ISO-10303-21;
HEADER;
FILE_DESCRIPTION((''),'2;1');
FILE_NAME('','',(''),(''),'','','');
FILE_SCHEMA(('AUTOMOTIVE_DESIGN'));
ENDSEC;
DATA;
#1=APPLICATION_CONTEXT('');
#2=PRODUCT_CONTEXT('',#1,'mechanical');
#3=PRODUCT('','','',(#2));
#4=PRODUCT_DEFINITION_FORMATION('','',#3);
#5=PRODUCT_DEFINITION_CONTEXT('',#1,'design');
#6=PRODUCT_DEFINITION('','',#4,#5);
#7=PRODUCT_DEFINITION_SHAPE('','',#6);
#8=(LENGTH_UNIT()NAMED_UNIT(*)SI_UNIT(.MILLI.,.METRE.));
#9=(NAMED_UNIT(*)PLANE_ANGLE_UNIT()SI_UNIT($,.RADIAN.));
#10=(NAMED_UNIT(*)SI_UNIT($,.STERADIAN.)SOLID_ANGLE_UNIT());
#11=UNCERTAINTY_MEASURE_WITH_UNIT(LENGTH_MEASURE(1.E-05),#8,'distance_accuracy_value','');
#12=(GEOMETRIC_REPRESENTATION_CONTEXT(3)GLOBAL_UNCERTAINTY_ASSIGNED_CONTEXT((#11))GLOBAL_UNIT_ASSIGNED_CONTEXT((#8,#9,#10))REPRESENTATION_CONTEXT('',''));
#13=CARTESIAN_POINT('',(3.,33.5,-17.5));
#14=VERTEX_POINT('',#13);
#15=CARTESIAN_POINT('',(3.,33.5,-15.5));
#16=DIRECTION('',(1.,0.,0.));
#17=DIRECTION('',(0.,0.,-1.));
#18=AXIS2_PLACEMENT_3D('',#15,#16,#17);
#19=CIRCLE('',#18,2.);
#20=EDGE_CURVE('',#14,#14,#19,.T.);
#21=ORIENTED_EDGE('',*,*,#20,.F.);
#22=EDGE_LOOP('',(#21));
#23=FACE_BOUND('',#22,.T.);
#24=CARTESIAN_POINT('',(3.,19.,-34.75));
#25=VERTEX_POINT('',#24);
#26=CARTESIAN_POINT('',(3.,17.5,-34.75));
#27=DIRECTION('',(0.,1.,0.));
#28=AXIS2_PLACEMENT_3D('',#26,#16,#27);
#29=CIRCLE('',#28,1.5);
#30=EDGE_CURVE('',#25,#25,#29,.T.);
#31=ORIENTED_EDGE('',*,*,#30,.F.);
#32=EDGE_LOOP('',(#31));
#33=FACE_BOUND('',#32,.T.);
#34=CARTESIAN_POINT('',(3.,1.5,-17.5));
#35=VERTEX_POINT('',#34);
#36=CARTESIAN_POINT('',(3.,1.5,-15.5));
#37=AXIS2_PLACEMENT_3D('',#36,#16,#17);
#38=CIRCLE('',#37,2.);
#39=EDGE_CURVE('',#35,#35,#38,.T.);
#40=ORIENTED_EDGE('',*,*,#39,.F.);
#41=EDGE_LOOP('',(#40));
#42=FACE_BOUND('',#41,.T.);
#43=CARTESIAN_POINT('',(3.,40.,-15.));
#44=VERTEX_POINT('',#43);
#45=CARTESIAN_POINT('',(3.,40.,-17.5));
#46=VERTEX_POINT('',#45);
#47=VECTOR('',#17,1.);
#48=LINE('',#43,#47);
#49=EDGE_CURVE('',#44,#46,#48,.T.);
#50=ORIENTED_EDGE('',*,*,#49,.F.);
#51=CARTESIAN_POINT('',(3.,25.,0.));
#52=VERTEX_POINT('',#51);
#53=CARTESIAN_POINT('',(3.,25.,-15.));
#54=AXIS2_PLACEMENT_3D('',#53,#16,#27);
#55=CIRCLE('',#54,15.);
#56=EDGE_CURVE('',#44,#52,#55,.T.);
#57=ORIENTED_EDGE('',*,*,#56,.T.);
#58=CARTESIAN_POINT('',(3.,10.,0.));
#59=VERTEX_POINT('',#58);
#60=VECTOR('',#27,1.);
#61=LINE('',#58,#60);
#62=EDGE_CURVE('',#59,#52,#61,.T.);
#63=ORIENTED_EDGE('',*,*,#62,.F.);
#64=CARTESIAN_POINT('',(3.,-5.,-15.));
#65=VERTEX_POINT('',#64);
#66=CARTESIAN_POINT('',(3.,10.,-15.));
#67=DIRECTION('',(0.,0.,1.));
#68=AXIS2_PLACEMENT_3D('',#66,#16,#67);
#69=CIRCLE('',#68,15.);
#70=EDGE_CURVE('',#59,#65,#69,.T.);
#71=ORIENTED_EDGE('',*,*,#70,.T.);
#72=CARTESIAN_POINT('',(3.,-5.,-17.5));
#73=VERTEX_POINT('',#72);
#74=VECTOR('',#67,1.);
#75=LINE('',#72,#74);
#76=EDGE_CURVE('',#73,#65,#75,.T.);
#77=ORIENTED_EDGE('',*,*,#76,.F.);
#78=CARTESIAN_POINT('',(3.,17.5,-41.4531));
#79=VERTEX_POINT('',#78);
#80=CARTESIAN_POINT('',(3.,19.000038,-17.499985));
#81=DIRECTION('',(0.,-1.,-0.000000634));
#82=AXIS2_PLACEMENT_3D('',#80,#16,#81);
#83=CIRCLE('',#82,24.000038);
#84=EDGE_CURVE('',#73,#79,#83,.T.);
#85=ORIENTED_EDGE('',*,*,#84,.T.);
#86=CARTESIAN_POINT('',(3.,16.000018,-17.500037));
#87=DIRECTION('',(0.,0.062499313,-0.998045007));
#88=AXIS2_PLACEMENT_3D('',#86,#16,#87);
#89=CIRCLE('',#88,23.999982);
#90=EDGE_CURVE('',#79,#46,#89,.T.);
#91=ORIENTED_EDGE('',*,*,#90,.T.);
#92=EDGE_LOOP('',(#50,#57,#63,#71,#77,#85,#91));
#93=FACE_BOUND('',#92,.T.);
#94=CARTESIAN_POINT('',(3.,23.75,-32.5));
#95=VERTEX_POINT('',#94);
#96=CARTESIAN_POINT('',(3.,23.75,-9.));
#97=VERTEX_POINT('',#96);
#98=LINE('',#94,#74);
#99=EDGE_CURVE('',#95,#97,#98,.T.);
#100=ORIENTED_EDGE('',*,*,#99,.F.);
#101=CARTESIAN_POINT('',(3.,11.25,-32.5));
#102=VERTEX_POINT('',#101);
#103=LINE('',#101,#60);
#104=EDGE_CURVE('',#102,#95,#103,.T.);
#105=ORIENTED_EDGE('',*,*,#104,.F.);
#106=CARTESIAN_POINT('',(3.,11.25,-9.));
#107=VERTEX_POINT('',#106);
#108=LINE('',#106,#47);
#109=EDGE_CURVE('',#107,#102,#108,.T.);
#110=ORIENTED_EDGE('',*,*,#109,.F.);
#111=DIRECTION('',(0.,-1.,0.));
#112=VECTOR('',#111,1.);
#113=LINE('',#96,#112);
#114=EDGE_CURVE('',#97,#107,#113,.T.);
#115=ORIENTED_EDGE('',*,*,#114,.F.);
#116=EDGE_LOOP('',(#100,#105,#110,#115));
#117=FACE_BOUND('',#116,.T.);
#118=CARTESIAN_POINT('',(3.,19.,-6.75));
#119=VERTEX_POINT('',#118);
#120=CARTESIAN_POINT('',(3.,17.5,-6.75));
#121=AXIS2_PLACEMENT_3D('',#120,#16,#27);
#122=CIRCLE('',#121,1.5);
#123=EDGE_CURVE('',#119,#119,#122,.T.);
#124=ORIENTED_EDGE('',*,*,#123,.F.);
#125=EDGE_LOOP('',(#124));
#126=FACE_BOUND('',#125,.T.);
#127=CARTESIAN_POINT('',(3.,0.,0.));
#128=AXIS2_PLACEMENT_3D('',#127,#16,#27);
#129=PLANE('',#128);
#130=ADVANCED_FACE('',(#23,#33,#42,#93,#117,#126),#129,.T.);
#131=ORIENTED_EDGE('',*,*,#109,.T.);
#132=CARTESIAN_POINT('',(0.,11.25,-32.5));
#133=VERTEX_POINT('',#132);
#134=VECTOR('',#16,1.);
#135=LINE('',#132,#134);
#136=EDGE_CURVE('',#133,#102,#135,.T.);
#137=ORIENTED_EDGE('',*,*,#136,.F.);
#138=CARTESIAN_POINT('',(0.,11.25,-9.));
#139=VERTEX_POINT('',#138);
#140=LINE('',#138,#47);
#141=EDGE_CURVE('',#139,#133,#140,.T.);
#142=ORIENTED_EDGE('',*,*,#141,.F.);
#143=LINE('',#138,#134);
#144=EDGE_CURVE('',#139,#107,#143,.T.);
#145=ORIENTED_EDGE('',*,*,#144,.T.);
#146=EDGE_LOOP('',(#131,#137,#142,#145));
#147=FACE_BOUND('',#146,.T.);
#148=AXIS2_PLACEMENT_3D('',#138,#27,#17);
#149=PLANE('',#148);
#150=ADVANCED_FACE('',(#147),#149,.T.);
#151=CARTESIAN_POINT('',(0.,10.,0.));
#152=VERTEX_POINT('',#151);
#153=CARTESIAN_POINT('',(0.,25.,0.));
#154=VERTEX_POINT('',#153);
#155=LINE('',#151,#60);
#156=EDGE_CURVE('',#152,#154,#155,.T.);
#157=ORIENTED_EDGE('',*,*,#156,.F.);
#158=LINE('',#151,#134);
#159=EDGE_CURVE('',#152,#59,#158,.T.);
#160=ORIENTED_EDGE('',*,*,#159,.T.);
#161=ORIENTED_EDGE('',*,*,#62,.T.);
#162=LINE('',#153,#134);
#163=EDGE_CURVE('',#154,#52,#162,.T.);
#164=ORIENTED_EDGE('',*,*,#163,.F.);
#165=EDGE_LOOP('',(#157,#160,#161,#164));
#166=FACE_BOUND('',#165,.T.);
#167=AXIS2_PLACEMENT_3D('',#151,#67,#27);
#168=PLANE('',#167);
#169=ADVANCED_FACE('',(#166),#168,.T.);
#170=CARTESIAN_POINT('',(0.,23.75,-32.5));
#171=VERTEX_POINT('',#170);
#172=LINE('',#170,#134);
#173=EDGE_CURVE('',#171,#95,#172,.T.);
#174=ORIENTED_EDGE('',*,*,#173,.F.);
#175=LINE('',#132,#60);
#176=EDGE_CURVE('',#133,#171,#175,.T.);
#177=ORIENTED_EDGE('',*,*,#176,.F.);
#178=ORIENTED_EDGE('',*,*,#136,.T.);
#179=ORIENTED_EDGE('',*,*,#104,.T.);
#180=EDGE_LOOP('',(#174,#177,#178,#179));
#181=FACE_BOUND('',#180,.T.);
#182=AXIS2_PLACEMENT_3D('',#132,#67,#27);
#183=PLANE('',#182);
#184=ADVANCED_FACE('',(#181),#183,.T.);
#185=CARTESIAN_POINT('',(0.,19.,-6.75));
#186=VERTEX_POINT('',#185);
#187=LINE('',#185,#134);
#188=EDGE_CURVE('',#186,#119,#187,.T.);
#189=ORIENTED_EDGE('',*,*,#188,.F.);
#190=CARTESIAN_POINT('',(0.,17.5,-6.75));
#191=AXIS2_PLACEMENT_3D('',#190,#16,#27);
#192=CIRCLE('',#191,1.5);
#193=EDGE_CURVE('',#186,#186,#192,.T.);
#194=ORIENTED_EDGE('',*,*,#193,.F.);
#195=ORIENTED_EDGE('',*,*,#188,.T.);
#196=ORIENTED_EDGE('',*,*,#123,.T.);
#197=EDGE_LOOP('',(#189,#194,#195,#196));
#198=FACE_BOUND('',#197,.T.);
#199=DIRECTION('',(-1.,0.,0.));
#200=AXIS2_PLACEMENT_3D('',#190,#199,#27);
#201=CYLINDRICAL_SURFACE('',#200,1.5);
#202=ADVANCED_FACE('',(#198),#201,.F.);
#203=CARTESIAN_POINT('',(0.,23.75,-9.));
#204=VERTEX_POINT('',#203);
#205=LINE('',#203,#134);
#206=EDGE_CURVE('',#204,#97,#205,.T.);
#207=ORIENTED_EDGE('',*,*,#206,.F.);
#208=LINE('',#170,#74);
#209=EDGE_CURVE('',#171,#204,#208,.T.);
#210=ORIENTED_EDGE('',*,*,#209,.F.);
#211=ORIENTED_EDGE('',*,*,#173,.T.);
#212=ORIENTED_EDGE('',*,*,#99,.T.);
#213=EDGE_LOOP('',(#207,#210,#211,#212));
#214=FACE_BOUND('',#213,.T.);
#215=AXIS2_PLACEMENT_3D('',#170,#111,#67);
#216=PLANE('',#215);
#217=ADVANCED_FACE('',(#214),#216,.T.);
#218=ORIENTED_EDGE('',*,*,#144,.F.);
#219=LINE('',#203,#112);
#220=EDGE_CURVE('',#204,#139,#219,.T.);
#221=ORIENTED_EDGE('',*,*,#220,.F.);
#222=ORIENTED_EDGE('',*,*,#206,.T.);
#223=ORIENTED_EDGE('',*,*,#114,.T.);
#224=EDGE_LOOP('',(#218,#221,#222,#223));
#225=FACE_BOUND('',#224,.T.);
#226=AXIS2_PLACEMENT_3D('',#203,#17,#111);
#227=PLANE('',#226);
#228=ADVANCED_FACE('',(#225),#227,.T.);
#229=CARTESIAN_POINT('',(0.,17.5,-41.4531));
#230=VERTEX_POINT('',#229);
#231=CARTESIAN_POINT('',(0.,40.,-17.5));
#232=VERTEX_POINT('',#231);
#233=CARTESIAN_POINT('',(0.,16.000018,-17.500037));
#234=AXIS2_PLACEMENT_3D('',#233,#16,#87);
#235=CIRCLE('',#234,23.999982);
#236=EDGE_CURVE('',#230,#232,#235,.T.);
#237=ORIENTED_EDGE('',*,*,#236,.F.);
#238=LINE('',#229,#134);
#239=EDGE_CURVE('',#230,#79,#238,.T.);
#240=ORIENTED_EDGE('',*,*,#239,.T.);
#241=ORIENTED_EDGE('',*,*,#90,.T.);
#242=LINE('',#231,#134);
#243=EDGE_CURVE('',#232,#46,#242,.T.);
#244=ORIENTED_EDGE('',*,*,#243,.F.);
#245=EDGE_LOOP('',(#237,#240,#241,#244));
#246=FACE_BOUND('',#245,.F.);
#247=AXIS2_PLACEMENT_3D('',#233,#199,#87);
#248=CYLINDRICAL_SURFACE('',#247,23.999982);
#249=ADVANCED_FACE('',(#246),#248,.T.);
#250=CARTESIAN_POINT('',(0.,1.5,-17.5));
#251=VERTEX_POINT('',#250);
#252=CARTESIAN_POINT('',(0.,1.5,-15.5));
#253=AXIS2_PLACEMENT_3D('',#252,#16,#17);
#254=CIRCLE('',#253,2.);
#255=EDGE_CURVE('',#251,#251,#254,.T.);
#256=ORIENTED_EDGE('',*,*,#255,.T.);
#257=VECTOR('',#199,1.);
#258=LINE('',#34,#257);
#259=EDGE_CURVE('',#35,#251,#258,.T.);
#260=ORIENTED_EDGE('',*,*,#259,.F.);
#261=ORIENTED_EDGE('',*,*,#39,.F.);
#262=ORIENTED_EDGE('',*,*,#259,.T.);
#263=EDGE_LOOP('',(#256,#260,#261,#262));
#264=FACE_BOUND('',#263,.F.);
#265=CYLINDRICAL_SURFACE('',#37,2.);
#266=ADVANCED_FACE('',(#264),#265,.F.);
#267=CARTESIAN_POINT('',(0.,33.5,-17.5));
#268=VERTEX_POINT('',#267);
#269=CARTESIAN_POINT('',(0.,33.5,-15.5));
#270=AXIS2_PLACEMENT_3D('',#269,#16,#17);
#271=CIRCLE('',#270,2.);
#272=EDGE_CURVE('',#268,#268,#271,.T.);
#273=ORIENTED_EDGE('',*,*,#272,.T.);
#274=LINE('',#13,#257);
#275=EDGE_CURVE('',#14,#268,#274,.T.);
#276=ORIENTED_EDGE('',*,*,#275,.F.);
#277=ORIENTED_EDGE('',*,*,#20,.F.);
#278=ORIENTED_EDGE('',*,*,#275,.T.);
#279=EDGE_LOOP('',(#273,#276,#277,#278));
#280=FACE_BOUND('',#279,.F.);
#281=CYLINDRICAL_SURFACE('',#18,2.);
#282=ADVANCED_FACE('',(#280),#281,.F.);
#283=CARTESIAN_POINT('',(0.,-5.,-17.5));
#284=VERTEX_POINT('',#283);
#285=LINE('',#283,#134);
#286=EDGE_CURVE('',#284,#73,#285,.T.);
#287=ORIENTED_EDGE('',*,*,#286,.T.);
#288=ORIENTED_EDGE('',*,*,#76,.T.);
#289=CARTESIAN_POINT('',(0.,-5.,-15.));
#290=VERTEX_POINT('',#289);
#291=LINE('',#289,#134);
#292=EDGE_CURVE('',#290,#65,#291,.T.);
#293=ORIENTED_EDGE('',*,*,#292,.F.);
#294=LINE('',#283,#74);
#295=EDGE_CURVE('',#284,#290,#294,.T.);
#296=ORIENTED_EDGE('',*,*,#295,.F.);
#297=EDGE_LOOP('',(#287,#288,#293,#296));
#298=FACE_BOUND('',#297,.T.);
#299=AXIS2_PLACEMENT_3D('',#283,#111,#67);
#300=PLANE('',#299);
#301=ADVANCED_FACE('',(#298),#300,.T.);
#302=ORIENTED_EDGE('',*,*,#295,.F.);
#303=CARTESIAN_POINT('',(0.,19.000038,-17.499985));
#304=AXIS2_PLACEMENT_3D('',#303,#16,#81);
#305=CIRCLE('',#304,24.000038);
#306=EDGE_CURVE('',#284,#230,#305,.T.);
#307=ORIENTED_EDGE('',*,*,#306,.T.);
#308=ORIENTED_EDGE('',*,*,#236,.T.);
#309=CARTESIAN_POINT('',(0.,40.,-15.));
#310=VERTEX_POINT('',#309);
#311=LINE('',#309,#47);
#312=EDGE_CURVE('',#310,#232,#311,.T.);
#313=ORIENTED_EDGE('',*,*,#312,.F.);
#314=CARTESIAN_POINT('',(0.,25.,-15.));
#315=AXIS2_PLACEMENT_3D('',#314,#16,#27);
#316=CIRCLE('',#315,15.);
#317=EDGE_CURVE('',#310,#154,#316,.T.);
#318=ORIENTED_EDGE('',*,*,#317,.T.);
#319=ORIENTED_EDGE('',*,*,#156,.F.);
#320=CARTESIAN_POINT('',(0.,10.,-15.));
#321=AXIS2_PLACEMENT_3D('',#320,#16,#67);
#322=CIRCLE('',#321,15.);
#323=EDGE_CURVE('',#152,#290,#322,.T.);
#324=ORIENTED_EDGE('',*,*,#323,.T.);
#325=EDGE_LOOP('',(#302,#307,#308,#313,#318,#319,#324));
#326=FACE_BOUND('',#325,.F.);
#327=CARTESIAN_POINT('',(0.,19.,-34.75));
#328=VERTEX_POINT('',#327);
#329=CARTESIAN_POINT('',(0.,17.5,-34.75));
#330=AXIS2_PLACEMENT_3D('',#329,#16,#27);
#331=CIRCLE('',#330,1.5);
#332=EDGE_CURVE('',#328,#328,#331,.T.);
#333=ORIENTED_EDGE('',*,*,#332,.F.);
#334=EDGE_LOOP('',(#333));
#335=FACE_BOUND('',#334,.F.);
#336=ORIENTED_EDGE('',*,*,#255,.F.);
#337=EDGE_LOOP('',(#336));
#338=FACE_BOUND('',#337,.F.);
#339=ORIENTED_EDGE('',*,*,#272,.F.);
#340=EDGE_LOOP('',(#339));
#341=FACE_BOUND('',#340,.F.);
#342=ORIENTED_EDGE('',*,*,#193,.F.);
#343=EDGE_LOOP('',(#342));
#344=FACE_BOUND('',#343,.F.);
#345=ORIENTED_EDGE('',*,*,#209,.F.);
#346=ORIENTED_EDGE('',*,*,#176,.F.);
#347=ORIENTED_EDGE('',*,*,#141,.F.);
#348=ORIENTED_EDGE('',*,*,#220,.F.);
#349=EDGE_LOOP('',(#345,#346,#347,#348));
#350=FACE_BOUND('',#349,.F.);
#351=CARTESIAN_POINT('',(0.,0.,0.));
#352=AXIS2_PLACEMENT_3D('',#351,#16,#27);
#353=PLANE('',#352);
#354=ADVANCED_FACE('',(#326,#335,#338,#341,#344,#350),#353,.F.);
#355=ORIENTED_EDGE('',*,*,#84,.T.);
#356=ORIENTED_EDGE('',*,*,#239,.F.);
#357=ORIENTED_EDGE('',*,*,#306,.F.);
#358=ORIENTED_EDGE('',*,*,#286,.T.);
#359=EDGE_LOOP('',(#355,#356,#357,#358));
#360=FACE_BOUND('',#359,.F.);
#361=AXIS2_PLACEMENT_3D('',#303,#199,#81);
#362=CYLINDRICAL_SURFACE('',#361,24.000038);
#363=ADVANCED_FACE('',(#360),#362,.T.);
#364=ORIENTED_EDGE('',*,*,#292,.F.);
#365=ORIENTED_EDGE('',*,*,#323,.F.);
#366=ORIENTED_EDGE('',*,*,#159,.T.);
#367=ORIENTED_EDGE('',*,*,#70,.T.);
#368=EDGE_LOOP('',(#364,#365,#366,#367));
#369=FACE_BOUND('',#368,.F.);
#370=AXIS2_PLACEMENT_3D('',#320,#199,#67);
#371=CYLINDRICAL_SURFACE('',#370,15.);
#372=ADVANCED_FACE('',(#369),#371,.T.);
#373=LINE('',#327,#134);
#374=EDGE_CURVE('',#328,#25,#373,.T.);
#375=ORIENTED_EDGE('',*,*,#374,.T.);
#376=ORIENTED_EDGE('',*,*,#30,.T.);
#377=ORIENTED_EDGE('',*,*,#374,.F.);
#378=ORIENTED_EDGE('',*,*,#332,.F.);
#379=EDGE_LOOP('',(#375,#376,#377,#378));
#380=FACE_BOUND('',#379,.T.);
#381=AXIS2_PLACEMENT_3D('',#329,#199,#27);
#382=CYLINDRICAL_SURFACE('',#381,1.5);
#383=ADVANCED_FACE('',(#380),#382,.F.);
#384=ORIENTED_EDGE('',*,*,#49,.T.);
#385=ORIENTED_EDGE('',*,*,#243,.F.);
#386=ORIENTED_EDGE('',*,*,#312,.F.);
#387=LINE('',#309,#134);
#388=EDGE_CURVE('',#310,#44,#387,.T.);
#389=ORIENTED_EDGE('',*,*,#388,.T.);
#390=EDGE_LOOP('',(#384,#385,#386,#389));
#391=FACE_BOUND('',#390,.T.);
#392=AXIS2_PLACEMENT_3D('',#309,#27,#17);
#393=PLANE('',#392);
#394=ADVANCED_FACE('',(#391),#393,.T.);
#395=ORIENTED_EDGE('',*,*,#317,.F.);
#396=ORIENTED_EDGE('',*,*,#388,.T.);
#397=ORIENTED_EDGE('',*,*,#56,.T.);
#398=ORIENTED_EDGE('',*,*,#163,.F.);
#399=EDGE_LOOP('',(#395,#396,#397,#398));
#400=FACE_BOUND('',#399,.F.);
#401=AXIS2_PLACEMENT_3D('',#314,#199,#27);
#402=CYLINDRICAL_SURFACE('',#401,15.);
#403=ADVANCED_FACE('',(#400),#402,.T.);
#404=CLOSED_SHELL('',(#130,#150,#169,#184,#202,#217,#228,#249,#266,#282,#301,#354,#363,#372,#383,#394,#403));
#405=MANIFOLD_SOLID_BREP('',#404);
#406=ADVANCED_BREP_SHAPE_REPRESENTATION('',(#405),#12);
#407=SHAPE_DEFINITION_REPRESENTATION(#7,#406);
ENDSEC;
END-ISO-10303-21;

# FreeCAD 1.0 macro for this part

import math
import FreeCAD as App
import Part
import Sketcher


def add_polygon(sketch, points):
    """Adds a closed chain of lines whose ends are joined by coincident constraints."""
    first, n = sketch.GeometryCount, len(points)
    for a, b in zip(points, points[1:] + points[:1]):
        sketch.addGeometry(Part.LineSegment(App.Vector(*a, 0), App.Vector(*b, 0)), False)
    for i in range(n):
        sketch.addConstraint(Sketcher.Constraint("Coincident", first + i, 2, first + (i + 1) % n, 1))

doc = App.newDocument("Part")
body = doc.addObject("PartDesign::Body", "Body")

sketch1 = doc.addObject("Sketcher::SketchObject", "Sketch")
body.addObject(sketch1)
sketch1.AttachmentSupport = (doc.YZ_Plane, [""])
sketch1.MapMode = "FlatFace"
sketch1.addGeometry(Part.LineSegment(App.Vector(25, 0, 0), App.Vector(10, 0, 0)), False)
sketch1.addGeometry(Part.ArcOfCircle(Part.Circle(App.Vector(10, -15, 0), App.Vector(0, 0, 1), 15), math.radians(90), math.radians(180)), False)
sketch1.addGeometry(Part.LineSegment(App.Vector(-5, -15, 0), App.Vector(-5, -17.5, 0)), False)
sketch1.addGeometry(Part.ArcOfCircle(Part.Circle(App.Vector(19, -17.5, 0), App.Vector(0, 0, 1), 24), math.radians(180), math.radians(266)), False)
sketch1.addGeometry(Part.ArcOfCircle(Part.Circle(App.Vector(16, -17.5, 0), App.Vector(0, 0, 1), 24), math.radians(-86), math.radians(0)), False)
sketch1.addGeometry(Part.LineSegment(App.Vector(40, -17.5, 0), App.Vector(40, -15, 0)), False)
sketch1.addGeometry(Part.ArcOfCircle(Part.Circle(App.Vector(25, -15, 0), App.Vector(0, 0, 1), 15), math.radians(0), math.radians(90)), False)
sketch1.addGeometry(Part.Circle(App.Vector(17.5, -34.8, 0), App.Vector(0, 0, 1), 1.5), False)
add_polygon(sketch1, [(11.2, -9), (23.8, -9), (23.8, -32.5), (11.2, -32.5)])
sketch1.addGeometry(Part.Circle(App.Vector(17.5, -6.8, 0), App.Vector(0, 0, 1), 1.5), False)
sketch1.addConstraint(Sketcher.Constraint("Tangent", 0, 2, 1, 1))
sketch1.addConstraint(Sketcher.Constraint("Tangent", 1, 2, 2, 1))
sketch1.addConstraint(Sketcher.Constraint("Tangent", 2, 2, 3, 1))
sketch1.addConstraint(Sketcher.Constraint("Coincident", 3, 2, 4, 1))
sketch1.addConstraint(Sketcher.Constraint("Tangent", 4, 2, 5, 1))
sketch1.addConstraint(Sketcher.Constraint("Tangent", 5, 2, 6, 1))
sketch1.addConstraint(Sketcher.Constraint("Tangent", 6, 2, 0, 1))
sketch1.addConstraint(Sketcher.Constraint("Horizontal", 0))
sketch1.addConstraint(Sketcher.Constraint("Vertical", 2))
sketch1.addConstraint(Sketcher.Constraint("Vertical", 5))
sketch1.addConstraint(Sketcher.Constraint("Horizontal", 8))
sketch1.addConstraint(Sketcher.Constraint("Vertical", 9))
sketch1.addConstraint(Sketcher.Constraint("Horizontal", 10))
sketch1.addConstraint(Sketcher.Constraint("Vertical", 11))
sketch1.addConstraint(Sketcher.Constraint("Equal", 3, 4))
sketch1.addConstraint(Sketcher.Constraint("Equal", 1, 6))
sketch1.addConstraint(Sketcher.Constraint("Equal", 7, 12))
sketch1.addConstraint(Sketcher.Constraint("PointOnObject", 0, 2, -1))
sketch1.addConstraint(Sketcher.Constraint("Horizontal", 3, 3, 4, 3))
sketch1.addConstraint(Sketcher.Constraint("Vertical", 7, 3, 12, 3))
sketch1.addConstraint(Sketcher.Constraint("Vertical", 12, 3, 3, 2))
sketch1.addConstraint(Sketcher.Constraint("Diameter", 7, 3.0))
sketch1.addConstraint(Sketcher.Constraint("Radius", 1, 15.0))
sketch1.addConstraint(Sketcher.Constraint("Radius", 3, 24.0))
sketch1.addConstraint(Sketcher.Constraint("DistanceX", 0, 2, 0, 1, 15.0))
sketch1.addConstraint(Sketcher.Constraint("DistanceX", 8, 1, 8, 2, 12.5))
sketch1.addConstraint(Sketcher.Constraint("DistanceY", 9, 2, 9, 1, 23.5))
sketch1.addConstraint(Sketcher.Constraint("DistanceY", 9, 2, 3, 3, 15.0))
sketch1.addConstraint(Sketcher.Constraint("DistanceY", 12, 3, -1, 1, 6.75))
sketch1.addConstraint(Sketcher.Constraint("DistanceY", 8, 2, 12, 3, 2.25))
sketch1.addConstraint(Sketcher.Constraint("DistanceY", 7, 3, 9, 2, 2.25))
sketch1.addConstraint(Sketcher.Constraint("DistanceX", -1, 1, 1, 3, 10.0))
sketch1.addConstraint(Sketcher.Constraint("DistanceX", -1, 1, 8, 2, 23.75))
pad1 = doc.addObject("PartDesign::Pad", "Pad")
body.addObject(pad1)
pad1.Profile = sketch1
pad1.Length = 3

sketch2 = doc.addObject("Sketcher::SketchObject", "Sketch001")
body.addObject(sketch2)
sketch2.AttachmentSupport = (doc.YZ_Plane, [""])
sketch2.MapMode = "FlatFace"
sketch2.AttachmentOffset = App.Placement(App.Vector(0, 0, 3), App.Rotation())
sketch2.addGeometry(Part.Circle(App.Vector(1.5, -15.5, 0), App.Vector(0, 0, 1), 2), False)
sketch2.addGeometry(Part.Circle(App.Vector(33.5, -15.5, 0), App.Vector(0, 0, 1), 2), False)
sketch2.addConstraint(Sketcher.Constraint("Equal", 0, 1))
sketch2.addConstraint(Sketcher.Constraint("Horizontal", 0, 3, 1, 3))
sketch2.addConstraint(Sketcher.Constraint("Diameter", 0, 4.0))
sketch2.addConstraint(Sketcher.Constraint("DistanceY", 0, 3, -1, 1, 15.5))
sketch2.addConstraint(Sketcher.Constraint("DistanceX", 0, 3, 1, 3, 32.0))
sketch2.addConstraint(Sketcher.Constraint("DistanceX", -1, 1, 0, 3, 1.5))
pocket1 = doc.addObject("PartDesign::Pocket", "Pocket")
body.addObject(pocket1)
pocket1.Profile = sketch2
pocket1.Type = "ThroughAll"

doc.recompute()
